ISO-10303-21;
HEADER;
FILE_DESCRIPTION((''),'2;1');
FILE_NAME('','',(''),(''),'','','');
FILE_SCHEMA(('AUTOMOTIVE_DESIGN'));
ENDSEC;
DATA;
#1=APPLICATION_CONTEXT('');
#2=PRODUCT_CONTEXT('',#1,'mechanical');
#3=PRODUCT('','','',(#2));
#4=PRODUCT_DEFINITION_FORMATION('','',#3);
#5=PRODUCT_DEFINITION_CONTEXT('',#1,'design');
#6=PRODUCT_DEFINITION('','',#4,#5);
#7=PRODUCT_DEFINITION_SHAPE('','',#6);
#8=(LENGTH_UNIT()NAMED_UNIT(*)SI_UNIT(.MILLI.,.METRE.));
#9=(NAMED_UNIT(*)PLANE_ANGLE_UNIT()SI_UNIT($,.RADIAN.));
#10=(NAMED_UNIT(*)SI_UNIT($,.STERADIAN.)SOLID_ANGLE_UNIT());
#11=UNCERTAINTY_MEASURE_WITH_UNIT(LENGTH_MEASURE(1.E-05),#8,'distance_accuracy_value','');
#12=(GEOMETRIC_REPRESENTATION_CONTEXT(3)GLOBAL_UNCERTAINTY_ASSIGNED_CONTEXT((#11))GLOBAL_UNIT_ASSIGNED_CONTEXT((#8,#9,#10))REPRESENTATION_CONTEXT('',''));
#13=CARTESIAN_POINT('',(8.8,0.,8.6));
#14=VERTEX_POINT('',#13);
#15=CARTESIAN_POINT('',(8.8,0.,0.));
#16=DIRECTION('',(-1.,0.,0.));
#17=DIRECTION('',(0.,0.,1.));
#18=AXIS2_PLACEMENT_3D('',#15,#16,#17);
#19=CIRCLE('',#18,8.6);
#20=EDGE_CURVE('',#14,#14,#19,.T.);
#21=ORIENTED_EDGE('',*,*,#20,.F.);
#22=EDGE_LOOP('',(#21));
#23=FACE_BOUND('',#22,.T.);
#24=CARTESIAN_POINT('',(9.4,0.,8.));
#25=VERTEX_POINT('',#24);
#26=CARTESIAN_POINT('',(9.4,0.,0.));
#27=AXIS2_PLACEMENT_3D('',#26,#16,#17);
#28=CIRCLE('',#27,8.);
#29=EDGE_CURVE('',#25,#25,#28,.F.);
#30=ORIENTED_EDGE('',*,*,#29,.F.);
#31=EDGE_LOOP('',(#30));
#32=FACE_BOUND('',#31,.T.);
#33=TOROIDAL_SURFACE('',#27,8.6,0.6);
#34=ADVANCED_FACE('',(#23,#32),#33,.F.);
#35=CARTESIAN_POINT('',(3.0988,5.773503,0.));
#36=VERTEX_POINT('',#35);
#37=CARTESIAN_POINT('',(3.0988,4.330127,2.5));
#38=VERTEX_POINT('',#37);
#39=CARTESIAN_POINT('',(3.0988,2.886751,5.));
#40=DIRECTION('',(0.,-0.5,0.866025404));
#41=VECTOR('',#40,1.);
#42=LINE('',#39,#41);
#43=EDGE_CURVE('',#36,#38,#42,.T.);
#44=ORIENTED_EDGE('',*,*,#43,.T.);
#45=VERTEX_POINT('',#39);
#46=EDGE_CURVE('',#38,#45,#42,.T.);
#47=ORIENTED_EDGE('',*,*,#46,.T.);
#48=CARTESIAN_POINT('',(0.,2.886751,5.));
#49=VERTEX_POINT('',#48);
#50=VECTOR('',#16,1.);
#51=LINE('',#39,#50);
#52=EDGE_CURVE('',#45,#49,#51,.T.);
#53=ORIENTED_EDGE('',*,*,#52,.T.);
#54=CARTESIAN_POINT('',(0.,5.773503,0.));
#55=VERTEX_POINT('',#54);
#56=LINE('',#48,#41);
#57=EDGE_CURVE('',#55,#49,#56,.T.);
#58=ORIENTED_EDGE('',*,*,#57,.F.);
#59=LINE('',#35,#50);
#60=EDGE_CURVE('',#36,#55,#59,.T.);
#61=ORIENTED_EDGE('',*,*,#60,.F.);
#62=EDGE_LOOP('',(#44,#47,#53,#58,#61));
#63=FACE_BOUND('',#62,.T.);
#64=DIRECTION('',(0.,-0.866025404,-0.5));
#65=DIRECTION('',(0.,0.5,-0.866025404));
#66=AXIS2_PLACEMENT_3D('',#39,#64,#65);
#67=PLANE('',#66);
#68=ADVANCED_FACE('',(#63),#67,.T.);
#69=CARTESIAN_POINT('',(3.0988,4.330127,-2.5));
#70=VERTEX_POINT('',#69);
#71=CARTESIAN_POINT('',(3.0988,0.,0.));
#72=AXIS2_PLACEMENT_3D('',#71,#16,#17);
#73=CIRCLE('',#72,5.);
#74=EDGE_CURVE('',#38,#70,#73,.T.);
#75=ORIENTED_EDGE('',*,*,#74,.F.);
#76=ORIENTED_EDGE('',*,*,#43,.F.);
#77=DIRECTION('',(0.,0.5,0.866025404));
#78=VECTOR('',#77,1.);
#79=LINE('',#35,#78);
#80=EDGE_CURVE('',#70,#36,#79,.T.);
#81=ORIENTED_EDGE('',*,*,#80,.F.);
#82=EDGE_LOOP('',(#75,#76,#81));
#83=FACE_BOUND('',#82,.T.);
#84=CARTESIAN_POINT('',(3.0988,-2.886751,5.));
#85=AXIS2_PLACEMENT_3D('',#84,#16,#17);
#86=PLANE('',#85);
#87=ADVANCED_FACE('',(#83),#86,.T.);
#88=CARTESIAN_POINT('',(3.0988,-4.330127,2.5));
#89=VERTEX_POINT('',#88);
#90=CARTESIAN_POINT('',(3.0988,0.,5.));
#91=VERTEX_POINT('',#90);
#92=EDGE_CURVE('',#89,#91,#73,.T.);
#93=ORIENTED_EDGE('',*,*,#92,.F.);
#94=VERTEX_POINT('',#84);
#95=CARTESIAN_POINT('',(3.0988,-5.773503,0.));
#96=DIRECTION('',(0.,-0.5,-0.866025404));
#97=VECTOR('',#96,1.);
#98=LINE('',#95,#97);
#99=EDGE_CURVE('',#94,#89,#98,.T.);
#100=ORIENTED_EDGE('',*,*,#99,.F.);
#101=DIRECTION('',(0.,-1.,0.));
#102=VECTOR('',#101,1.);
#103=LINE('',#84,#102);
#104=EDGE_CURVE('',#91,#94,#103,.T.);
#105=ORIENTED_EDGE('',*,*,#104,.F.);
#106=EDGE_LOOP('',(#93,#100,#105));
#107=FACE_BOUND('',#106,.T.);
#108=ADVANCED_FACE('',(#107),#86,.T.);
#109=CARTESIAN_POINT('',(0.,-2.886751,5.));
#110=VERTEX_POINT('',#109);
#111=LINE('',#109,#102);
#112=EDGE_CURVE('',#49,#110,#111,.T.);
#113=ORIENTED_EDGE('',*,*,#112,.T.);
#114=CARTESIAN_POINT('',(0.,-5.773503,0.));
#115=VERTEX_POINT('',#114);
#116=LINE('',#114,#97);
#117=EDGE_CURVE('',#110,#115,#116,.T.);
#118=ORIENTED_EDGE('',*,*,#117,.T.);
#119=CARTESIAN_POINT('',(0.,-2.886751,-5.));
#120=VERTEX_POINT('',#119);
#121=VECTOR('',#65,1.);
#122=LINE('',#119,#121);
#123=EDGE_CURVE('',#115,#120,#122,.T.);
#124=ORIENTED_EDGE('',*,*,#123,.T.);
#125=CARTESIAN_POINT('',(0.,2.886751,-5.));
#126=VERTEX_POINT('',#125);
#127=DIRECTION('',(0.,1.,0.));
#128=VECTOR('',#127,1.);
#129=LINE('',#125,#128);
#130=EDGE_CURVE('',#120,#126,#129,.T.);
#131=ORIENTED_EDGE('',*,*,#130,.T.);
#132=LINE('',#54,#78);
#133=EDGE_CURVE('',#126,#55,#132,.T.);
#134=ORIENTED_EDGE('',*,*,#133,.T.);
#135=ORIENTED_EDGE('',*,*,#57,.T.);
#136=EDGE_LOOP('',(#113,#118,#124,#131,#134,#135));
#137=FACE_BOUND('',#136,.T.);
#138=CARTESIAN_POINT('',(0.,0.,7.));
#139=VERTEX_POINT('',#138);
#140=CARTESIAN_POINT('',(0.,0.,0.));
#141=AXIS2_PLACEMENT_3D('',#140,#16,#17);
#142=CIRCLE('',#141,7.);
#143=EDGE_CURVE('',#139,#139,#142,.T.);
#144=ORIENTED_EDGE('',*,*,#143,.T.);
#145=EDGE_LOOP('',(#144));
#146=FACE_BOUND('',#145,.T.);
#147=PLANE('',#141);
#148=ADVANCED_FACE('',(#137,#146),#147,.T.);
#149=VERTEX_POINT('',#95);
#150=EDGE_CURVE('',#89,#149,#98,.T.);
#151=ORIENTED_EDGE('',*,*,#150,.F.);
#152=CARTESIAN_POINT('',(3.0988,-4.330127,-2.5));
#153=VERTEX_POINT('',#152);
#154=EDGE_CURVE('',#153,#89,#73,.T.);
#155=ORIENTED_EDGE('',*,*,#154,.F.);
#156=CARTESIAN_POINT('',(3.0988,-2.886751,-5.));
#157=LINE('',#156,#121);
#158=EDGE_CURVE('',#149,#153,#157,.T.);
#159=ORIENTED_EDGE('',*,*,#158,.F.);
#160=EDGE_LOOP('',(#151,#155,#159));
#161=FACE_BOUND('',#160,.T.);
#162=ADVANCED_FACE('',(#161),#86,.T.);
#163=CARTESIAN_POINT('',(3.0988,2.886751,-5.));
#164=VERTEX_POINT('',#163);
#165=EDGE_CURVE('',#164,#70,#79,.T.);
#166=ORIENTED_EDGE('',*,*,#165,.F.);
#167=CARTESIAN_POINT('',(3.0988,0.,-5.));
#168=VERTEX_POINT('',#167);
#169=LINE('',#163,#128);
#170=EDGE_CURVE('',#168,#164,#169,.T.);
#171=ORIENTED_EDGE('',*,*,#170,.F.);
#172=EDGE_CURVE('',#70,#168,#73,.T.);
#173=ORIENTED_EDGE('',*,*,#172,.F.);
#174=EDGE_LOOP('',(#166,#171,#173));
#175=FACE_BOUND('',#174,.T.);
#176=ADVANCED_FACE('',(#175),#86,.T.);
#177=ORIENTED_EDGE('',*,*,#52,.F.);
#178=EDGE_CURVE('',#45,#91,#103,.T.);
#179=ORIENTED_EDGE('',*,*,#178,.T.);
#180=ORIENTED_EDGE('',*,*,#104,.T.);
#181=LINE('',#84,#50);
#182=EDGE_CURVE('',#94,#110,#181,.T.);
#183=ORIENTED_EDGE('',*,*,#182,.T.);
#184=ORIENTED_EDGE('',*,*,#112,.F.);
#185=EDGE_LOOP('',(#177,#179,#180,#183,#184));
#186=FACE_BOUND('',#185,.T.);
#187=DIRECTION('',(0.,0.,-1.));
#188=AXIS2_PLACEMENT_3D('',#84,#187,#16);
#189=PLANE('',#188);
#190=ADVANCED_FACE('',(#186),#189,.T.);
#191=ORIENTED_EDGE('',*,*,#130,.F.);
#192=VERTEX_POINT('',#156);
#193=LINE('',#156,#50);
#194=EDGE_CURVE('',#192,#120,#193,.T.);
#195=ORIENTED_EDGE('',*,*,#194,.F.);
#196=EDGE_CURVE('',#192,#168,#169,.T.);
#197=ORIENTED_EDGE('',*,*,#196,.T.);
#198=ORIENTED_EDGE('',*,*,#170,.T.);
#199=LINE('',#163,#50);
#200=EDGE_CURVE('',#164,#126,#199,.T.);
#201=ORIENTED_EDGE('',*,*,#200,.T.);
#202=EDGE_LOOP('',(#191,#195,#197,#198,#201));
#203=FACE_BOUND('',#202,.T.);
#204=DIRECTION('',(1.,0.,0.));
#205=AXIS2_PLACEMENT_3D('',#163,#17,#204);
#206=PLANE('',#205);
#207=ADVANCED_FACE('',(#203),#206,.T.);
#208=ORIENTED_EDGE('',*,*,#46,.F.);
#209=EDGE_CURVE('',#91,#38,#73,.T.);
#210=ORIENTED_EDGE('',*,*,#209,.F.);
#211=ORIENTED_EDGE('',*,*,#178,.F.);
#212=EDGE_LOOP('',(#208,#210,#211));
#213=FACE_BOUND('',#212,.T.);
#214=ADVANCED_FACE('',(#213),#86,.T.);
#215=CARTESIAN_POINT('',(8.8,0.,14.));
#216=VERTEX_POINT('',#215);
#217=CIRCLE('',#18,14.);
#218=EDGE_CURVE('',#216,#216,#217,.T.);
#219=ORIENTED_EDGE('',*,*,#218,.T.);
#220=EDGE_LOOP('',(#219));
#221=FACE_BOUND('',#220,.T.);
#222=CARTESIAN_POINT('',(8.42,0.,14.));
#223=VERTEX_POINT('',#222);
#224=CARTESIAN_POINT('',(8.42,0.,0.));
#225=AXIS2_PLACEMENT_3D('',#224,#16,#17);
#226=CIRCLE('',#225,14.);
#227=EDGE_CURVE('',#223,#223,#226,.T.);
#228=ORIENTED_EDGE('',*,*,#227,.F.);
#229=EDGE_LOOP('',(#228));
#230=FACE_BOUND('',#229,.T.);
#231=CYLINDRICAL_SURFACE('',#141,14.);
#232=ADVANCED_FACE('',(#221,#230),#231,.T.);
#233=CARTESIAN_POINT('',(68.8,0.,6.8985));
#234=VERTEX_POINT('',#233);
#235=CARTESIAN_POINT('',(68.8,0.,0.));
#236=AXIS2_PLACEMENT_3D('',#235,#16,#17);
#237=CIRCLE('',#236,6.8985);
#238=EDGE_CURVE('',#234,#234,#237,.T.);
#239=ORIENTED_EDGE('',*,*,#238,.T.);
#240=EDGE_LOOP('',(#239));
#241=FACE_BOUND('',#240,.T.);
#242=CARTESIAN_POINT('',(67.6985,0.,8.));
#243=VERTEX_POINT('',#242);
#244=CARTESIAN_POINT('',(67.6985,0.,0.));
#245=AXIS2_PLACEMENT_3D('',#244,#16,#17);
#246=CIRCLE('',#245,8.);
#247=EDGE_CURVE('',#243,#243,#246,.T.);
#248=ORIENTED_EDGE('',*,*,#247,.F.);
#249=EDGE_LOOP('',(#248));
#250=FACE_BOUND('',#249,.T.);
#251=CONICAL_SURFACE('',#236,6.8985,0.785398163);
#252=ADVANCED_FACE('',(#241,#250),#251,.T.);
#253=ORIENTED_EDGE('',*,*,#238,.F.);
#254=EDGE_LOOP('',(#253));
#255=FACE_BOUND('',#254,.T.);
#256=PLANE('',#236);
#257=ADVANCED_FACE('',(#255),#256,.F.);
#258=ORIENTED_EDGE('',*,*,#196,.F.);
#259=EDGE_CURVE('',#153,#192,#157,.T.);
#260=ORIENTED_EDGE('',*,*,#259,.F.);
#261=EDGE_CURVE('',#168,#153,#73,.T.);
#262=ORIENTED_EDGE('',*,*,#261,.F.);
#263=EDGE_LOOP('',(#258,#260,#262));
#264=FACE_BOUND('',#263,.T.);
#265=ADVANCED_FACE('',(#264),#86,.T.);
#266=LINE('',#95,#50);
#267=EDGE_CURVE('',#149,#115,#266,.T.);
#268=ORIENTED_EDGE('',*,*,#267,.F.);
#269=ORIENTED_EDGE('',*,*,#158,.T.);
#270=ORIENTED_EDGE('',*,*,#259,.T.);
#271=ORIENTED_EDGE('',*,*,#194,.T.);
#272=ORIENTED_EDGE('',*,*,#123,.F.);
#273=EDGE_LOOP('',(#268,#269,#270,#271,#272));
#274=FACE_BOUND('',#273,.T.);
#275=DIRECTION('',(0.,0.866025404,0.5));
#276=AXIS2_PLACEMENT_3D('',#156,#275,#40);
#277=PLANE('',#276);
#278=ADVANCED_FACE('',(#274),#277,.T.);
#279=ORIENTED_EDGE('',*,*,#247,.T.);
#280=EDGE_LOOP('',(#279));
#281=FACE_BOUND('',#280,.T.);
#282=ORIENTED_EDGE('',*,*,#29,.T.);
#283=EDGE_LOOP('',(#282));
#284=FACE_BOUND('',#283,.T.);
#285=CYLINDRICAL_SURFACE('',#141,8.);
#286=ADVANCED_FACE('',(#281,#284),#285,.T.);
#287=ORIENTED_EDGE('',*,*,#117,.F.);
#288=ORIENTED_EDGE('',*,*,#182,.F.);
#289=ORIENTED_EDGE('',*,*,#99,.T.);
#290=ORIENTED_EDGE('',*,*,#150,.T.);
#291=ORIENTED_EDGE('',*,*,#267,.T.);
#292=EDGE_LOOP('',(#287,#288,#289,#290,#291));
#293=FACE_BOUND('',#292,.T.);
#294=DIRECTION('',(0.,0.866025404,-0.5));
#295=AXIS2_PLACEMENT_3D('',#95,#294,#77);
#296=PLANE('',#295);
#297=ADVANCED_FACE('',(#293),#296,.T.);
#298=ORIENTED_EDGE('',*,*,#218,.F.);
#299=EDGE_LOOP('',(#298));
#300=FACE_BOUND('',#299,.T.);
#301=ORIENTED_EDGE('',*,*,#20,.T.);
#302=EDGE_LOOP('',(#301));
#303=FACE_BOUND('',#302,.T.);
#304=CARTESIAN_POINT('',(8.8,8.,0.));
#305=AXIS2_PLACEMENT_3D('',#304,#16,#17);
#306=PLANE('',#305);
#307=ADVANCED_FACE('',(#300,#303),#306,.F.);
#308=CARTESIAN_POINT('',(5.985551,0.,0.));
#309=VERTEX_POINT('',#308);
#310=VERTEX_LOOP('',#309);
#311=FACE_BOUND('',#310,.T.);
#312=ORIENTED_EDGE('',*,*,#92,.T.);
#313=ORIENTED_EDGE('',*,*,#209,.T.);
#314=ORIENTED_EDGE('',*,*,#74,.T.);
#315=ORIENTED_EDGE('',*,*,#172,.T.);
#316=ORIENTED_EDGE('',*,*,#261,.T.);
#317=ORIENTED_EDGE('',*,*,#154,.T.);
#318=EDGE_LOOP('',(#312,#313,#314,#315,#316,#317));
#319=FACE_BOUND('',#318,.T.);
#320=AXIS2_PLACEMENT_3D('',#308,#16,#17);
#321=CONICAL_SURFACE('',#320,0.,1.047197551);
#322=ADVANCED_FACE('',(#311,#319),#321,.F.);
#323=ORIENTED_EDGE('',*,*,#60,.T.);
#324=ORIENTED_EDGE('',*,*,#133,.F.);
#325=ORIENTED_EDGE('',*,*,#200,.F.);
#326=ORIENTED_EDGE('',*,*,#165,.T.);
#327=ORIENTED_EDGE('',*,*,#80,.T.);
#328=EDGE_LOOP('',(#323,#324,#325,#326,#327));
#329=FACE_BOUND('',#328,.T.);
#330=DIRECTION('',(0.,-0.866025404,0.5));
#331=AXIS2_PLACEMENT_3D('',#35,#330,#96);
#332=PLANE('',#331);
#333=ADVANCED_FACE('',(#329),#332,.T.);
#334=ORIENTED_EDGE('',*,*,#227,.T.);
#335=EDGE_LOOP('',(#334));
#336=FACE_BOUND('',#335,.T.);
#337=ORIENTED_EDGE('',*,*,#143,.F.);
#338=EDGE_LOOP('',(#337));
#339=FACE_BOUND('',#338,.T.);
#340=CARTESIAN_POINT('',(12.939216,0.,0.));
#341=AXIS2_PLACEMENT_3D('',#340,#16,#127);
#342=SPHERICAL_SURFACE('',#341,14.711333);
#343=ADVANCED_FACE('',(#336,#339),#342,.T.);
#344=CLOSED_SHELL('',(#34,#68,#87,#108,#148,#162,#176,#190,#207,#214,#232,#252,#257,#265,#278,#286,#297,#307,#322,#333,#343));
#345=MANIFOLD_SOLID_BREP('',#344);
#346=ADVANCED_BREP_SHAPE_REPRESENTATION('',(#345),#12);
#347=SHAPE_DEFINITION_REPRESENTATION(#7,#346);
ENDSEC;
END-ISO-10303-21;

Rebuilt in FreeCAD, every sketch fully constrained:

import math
import FreeCAD as App
import Part
import Sketcher

V = App.Vector
Q = App.Units.Quantity


def edges_at(feature, points):
    """Names of the edges that pass closest to the given points."""
    edges = feature.Shape.Edges
    near = lambda p: min(range(len(edges)), key=lambda i: edges[i].distToShape(Part.Vertex(*p))[0])
    return sorted({f"Edge{near(p) + 1}" for p in points})


def add_polygon(sketch, points):
    """Adds a closed chain of lines whose ends are joined by coincident constraints."""
    first, n = sketch.GeometryCount, len(points)
    for a, b in zip(points, points[1:] + points[:1]):
        sketch.addGeometry(Part.LineSegment(App.Vector(*a, 0), App.Vector(*b, 0)), False)
    for i in range(n):
        sketch.addConstraint(Sketcher.Constraint("Coincident", first + i, 2, first + (i + 1) % n, 1))

doc = App.newDocument("Part")
body = doc.addObject("PartDesign::Body", "Body")

# Sketch on XY plane
sketch1 = body.newObject("Sketcher::SketchObject", "Sketch")
sketch1.AttachmentSupport = (doc.getObject("XY_Plane"), [""])
sketch1.MapMode = "FlatFace"
sketch1.addGeometry([
    Part.LineSegment(V(68.8, 0, 0), V(68.8, 6.8985, 0)),  # 0
    Part.LineSegment(V(68.8, 6.8985, 0), V(67.6985, 8, 0)),  # 1
    Part.LineSegment(V(67.6985, 8, 0), V(8.8, 8, 0)),  # 2
    Part.LineSegment(V(8.8, 8, 0), V(8.8, 14, 0)),  # 3
    Part.LineSegment(V(8.8, 14, 0), V(8.42, 14, 0)),  # 4
    Part.ArcOfCircle(Part.Circle(V(12.939216, 0, 0), V(0, 0, 1), 14.711333), math.radians(107.890139), math.radians(151.587009)),  # 5
    Part.LineSegment(V(0, 7, 0), V(0, 0, 0)),  # 6
    Part.LineSegment(V(0, 0, 0), V(68.8, 0, 0)),  # 7
], False)
sketch1.addConstraint([
    Sketcher.Constraint("Coincident", 0, 2, 1, 1),
    Sketcher.Constraint("Coincident", 1, 2, 2, 1),
    Sketcher.Constraint("Coincident", 2, 2, 3, 1),
    Sketcher.Constraint("Coincident", 3, 2, 4, 1),
    Sketcher.Constraint("Coincident", 4, 2, 5, 1),
    Sketcher.Constraint("Coincident", 5, 2, 6, 1),
    Sketcher.Constraint("Coincident", 6, 2, 7, 1),
    Sketcher.Constraint("Coincident", 7, 2, 0, 1),
    Sketcher.Constraint("Vertical", 0),
    Sketcher.Constraint("Horizontal", 2),
    Sketcher.Constraint("Vertical", 3),
    Sketcher.Constraint("Horizontal", 4),
    Sketcher.Constraint("Vertical", 6),
    Sketcher.Constraint("Horizontal", 7),
    Sketcher.Constraint("Coincident", 6, 2, -1, 1),
    Sketcher.Constraint("PointOnObject", 5, 3, -1),
    Sketcher.Constraint("DistanceY", 3, 1, 3, 2, 6.0),
    Sketcher.Constraint("DistanceY", 6, 2, 6, 1, 7.0),
    Sketcher.Constraint("Angle", 1, Q("135 deg")),
    Sketcher.Constraint("DistanceX", 7, 1, 7, 2, 68.8),
    Sketcher.Constraint("DistanceY", -1, 1, 1, 2, 8.0),
    Sketcher.Constraint("DistanceX", 2, 2, 0, 2, 60.0),
    Sketcher.Constraint("DistanceX", 4, 2, 4, 1, 0.38),
    Sketcher.Constraint("DistanceX", 2, 2, 2, 1, 58.8985),
])
revolution = body.newObject("PartDesign::Revolution", "Revolution")
revolution.Profile = sketch1
revolution.ReferenceAxis = (sketch1, ["H_Axis"])
revolution.Angle = 360
doc.recompute()

fillet = body.newObject("PartDesign::Fillet", "Fillet")
fillet.Base = (revolution, edges_at(revolution, [(8.8, -8, 0)]))
fillet.Radius = 0.6

# Sketch on XY plane
sketch2 = body.newObject("Sketcher::SketchObject", "Sketch001")
sketch2.AttachmentSupport = (doc.getObject("XY_Plane"), [""])
sketch2.MapMode = "FlatFace"
add_polygon(sketch2, [(3.0988, 5), (0, 5), (0, 0), (5.985551, 0)])  # lines 0-3
sketch2.addConstraint([
    Sketcher.Constraint("Horizontal", 0),
    Sketcher.Constraint("Vertical", 1),
    Sketcher.Constraint("Horizontal", 2),
    Sketcher.Constraint("Coincident", 1, 2, -1, 1),
    Sketcher.Constraint("DistanceY", 1, 2, 1, 1, 5.0),
    Sketcher.Constraint("Angle", 3, Q("120 deg")),
    Sketcher.Constraint("DistanceX", 0, 2, 0, 1, 3.0988),
])
groove = body.newObject("PartDesign::Groove", "Groove")
groove.Profile = sketch2
groove.ReferenceAxis = (sketch2, ["H_Axis"])
groove.Angle = 360

# Sketch on YZ plane
sketch3 = body.newObject("Sketcher::SketchObject", "Sketch002")
sketch3.AttachmentSupport = (doc.getObject("YZ_Plane"), [""])
sketch3.MapMode = "FlatFace"
add_polygon(sketch3, [(2.886751, 5), (-2.886751, 5), (-5.773503, 0), (-2.886751, -5), (2.886751, -5), (5.773503, 0)])  # lines 0-5
sketch3.addConstraint([
    Sketcher.Constraint("Horizontal", 0),
    Sketcher.Constraint("Horizontal", 3),
    Sketcher.Constraint("Symmetric", 0, 2, 3, 2, -1, 1),
    Sketcher.Constraint("Symmetric", 1, 2, 4, 2, -1, 1),
    Sketcher.Constraint("PointOnObject", 1, 2, -1),
    Sketcher.Constraint("Parallel", 2, 5),
    Sketcher.Constraint("Vertical", 0, 2, 2, 2),
    Sketcher.Constraint("Angle", 1, Q("-120 deg")),
    Sketcher.Constraint("DistanceY", -1, 1, 0, 2, 5.0),
    Sketcher.Constraint("DistanceX", 0, 2, 0, 1, 5.773503),
])
pocket1 = body.newObject("PartDesign::Pocket", "Pocket")
pocket1.Profile = sketch3
pocket1.Length = 3.0988
pocket1.Reversed = True

doc.recompute()
